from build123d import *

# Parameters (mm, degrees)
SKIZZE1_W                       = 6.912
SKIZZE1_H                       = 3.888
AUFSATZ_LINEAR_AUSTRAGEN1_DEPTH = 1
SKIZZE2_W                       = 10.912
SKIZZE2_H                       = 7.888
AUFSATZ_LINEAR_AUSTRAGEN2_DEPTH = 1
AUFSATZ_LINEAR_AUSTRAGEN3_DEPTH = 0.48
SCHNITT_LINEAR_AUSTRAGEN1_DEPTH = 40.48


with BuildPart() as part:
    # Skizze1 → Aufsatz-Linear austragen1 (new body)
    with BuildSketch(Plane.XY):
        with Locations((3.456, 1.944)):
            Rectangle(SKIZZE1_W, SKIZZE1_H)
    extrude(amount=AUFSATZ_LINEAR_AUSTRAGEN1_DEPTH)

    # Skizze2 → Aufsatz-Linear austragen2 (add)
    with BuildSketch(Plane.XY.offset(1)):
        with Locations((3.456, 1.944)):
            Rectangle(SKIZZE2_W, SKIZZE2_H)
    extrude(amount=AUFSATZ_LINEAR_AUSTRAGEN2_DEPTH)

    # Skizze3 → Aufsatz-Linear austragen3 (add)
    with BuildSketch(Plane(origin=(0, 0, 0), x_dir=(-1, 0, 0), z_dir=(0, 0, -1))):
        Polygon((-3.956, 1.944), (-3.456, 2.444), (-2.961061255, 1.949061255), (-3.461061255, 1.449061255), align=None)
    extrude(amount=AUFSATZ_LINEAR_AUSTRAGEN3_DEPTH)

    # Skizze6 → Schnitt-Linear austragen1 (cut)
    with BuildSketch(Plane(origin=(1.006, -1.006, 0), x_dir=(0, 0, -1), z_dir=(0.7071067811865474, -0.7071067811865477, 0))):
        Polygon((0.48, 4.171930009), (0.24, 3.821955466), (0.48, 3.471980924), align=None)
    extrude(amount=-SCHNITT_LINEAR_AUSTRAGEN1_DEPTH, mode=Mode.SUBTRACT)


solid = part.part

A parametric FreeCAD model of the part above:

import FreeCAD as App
import Part
import Sketcher

V = App.Vector
Q = App.Units.Quantity


def add_polygon(sketch, points):
    """Adds a closed chain of lines whose ends are joined by coincident constraints."""
    first, n = sketch.GeometryCount, len(points)
    for a, b in zip(points, points[1:] + points[:1]):
        sketch.addGeometry(Part.LineSegment(App.Vector(*a, 0), App.Vector(*b, 0)), False)
    for i in range(n):
        sketch.addConstraint(Sketcher.Constraint("Coincident", first + i, 2, first + (i + 1) % n, 1))

doc = App.newDocument("Part")
params = doc.addObject("Spreadsheet::Sheet", "Params")
for row, (alias, value) in enumerate([
    ("pad1_length", "1 mm"),
    ("pad2_length", "1 mm"),
    ("pad3_length", "0.48 mm"),
    ("pocket1_length", "40.48 mm"),
], start=1):
    params.set(f"A{row}", alias)
    params.set(f"B{row}", "=" + value)
    params.setAlias(f"B{row}", alias)

body = doc.addObject("PartDesign::Body", "Body")

sketch1 = doc.addObject("Sketcher::SketchObject", "Sketch")
body.addObject(sketch1)
sketch1.AttachmentSupport = (doc.XY_Plane, [""])
sketch1.MapMode = "FlatFace"
add_polygon(sketch1, [(0, 3.9), (0, 0), (6.9, 0), (6.9, 3.9)])
sketch1.addConstraint([
    Sketcher.Constraint("Vertical", 0),
    Sketcher.Constraint("Horizontal", 1),
    Sketcher.Constraint("Vertical", 2),
    Sketcher.Constraint("Horizontal", 3),
    Sketcher.Constraint("Coincident", 0, 2, -1, 1),
    Sketcher.Constraint("DistanceX", 1, 1, 1, 2, Q("6.912 mm")),
    Sketcher.Constraint("DistanceY", 0, 2, 0, 1, Q("3.888 mm")),
])
pad1 = doc.addObject("PartDesign::Pad", "Pad")
body.addObject(pad1)
pad1.Profile = sketch1
pad1.setExpression("Length", "Params.pad1_length")

sketch2 = doc.addObject("Sketcher::SketchObject", "Sketch001")
body.addObject(sketch2)
sketch2.AttachmentSupport = (doc.XY_Plane, [""])
sketch2.MapMode = "FlatFace"
sketch2.AttachmentOffset = App.Placement(V(0, 0, 1), App.Rotation())
add_polygon(sketch2, [(-2, 6), (-2, -2), (9, -2), (9, 6)])
sketch2.addConstraint([
    Sketcher.Constraint("Vertical", 0),
    Sketcher.Constraint("Horizontal", 1),
    Sketcher.Constraint("Vertical", 2),
    Sketcher.Constraint("Horizontal", 3),
    Sketcher.Constraint("DistanceX", 0, 2, -1, 1, Q("2 mm")),
    Sketcher.Constraint("DistanceY", 0, 2, -1, 1, Q("2 mm")),
    Sketcher.Constraint("DistanceX", 1, 1, 1, 2, Q("10.912 mm")),
    Sketcher.Constraint("DistanceY", 0, 2, 0, 1, Q("7.888 mm")),
])
pad2 = doc.addObject("PartDesign::Pad", "Pad001")
body.addObject(pad2)
pad2.Profile = sketch2
pad2.setExpression("Length", "Params.pad2_length")

sketch3 = doc.addObject("Sketcher::SketchObject", "Sketch002")
body.addObject(sketch3)
sketch3.AttachmentSupport = (doc.XY_Plane, [""])
sketch3.MapMode = "FlatFace"
add_polygon(sketch3, [(3.5, 2.4), (4, 1.9), (3.5, 1.4), (3, 1.9)])
sketch3.addConstraint([
    Sketcher.Constraint("Perpendicular", 0, 1),
    Sketcher.Constraint("Perpendicular", 1, 2),
    Sketcher.Constraint("Perpendicular", 2, 3),
    Sketcher.Constraint("Angle", 0, Q("-45 deg")),
    Sketcher.Constraint("DistanceX", 2, 2, 1, 2, Q("0.5 mm")),
    Sketcher.Constraint("DistanceX", -1, 1, 0, 2, Q("3.956 mm")),
    Sketcher.Constraint("DistanceY", -1, 1, 0, 2, Q("1.944 mm")),
    Sketcher.Constraint("Distance", 1, Q("0.699949 mm")),
])
pad3 = doc.addObject("PartDesign::Pad", "Pad002")
body.addObject(pad3)
pad3.Profile = sketch3
pad3.setExpression("Length", "Params.pad3_length")
pad3.Reversed = True

sketch4 = doc.addObject("Sketcher::SketchObject", "Sketch003")
body.addObject(sketch4)
sketch4.Placement = App.Placement(V(1.006, -1.006, 0), App.Rotation(V(0, 0, -1), V(0.707106781, 0.707106781, 0), V(0.707106781, -0.707106781, 0), "ZXY"))
add_polygon(sketch4, [(0.48, 4.17), (0.24, 3.82), (0.48, 3.47)])
sketch4.addConstraint([
    Sketcher.Constraint("Vertical", 2),
    Sketcher.Constraint("Equal", 0, 1),
    Sketcher.Constraint("DistanceX", -1, 1, 0, 2, Q("0.24 mm")),
    Sketcher.Constraint("DistanceX", -1, 1, 1, 2, Q("0.48 mm")),
    Sketcher.Constraint("DistanceY", 2, 1, 2, 2, Q("0.699949 mm")),
    Sketcher.Constraint("DistanceY", -1, 1, 1, 2, Q("3.471981 mm")),
])
pocket1 = doc.addObject("PartDesign::Pocket", "Pocket")
body.addObject(pocket1)
pocket1.Profile = sketch4
pocket1.setExpression("Length", "Params.pocket1_length")

doc.recompute()
